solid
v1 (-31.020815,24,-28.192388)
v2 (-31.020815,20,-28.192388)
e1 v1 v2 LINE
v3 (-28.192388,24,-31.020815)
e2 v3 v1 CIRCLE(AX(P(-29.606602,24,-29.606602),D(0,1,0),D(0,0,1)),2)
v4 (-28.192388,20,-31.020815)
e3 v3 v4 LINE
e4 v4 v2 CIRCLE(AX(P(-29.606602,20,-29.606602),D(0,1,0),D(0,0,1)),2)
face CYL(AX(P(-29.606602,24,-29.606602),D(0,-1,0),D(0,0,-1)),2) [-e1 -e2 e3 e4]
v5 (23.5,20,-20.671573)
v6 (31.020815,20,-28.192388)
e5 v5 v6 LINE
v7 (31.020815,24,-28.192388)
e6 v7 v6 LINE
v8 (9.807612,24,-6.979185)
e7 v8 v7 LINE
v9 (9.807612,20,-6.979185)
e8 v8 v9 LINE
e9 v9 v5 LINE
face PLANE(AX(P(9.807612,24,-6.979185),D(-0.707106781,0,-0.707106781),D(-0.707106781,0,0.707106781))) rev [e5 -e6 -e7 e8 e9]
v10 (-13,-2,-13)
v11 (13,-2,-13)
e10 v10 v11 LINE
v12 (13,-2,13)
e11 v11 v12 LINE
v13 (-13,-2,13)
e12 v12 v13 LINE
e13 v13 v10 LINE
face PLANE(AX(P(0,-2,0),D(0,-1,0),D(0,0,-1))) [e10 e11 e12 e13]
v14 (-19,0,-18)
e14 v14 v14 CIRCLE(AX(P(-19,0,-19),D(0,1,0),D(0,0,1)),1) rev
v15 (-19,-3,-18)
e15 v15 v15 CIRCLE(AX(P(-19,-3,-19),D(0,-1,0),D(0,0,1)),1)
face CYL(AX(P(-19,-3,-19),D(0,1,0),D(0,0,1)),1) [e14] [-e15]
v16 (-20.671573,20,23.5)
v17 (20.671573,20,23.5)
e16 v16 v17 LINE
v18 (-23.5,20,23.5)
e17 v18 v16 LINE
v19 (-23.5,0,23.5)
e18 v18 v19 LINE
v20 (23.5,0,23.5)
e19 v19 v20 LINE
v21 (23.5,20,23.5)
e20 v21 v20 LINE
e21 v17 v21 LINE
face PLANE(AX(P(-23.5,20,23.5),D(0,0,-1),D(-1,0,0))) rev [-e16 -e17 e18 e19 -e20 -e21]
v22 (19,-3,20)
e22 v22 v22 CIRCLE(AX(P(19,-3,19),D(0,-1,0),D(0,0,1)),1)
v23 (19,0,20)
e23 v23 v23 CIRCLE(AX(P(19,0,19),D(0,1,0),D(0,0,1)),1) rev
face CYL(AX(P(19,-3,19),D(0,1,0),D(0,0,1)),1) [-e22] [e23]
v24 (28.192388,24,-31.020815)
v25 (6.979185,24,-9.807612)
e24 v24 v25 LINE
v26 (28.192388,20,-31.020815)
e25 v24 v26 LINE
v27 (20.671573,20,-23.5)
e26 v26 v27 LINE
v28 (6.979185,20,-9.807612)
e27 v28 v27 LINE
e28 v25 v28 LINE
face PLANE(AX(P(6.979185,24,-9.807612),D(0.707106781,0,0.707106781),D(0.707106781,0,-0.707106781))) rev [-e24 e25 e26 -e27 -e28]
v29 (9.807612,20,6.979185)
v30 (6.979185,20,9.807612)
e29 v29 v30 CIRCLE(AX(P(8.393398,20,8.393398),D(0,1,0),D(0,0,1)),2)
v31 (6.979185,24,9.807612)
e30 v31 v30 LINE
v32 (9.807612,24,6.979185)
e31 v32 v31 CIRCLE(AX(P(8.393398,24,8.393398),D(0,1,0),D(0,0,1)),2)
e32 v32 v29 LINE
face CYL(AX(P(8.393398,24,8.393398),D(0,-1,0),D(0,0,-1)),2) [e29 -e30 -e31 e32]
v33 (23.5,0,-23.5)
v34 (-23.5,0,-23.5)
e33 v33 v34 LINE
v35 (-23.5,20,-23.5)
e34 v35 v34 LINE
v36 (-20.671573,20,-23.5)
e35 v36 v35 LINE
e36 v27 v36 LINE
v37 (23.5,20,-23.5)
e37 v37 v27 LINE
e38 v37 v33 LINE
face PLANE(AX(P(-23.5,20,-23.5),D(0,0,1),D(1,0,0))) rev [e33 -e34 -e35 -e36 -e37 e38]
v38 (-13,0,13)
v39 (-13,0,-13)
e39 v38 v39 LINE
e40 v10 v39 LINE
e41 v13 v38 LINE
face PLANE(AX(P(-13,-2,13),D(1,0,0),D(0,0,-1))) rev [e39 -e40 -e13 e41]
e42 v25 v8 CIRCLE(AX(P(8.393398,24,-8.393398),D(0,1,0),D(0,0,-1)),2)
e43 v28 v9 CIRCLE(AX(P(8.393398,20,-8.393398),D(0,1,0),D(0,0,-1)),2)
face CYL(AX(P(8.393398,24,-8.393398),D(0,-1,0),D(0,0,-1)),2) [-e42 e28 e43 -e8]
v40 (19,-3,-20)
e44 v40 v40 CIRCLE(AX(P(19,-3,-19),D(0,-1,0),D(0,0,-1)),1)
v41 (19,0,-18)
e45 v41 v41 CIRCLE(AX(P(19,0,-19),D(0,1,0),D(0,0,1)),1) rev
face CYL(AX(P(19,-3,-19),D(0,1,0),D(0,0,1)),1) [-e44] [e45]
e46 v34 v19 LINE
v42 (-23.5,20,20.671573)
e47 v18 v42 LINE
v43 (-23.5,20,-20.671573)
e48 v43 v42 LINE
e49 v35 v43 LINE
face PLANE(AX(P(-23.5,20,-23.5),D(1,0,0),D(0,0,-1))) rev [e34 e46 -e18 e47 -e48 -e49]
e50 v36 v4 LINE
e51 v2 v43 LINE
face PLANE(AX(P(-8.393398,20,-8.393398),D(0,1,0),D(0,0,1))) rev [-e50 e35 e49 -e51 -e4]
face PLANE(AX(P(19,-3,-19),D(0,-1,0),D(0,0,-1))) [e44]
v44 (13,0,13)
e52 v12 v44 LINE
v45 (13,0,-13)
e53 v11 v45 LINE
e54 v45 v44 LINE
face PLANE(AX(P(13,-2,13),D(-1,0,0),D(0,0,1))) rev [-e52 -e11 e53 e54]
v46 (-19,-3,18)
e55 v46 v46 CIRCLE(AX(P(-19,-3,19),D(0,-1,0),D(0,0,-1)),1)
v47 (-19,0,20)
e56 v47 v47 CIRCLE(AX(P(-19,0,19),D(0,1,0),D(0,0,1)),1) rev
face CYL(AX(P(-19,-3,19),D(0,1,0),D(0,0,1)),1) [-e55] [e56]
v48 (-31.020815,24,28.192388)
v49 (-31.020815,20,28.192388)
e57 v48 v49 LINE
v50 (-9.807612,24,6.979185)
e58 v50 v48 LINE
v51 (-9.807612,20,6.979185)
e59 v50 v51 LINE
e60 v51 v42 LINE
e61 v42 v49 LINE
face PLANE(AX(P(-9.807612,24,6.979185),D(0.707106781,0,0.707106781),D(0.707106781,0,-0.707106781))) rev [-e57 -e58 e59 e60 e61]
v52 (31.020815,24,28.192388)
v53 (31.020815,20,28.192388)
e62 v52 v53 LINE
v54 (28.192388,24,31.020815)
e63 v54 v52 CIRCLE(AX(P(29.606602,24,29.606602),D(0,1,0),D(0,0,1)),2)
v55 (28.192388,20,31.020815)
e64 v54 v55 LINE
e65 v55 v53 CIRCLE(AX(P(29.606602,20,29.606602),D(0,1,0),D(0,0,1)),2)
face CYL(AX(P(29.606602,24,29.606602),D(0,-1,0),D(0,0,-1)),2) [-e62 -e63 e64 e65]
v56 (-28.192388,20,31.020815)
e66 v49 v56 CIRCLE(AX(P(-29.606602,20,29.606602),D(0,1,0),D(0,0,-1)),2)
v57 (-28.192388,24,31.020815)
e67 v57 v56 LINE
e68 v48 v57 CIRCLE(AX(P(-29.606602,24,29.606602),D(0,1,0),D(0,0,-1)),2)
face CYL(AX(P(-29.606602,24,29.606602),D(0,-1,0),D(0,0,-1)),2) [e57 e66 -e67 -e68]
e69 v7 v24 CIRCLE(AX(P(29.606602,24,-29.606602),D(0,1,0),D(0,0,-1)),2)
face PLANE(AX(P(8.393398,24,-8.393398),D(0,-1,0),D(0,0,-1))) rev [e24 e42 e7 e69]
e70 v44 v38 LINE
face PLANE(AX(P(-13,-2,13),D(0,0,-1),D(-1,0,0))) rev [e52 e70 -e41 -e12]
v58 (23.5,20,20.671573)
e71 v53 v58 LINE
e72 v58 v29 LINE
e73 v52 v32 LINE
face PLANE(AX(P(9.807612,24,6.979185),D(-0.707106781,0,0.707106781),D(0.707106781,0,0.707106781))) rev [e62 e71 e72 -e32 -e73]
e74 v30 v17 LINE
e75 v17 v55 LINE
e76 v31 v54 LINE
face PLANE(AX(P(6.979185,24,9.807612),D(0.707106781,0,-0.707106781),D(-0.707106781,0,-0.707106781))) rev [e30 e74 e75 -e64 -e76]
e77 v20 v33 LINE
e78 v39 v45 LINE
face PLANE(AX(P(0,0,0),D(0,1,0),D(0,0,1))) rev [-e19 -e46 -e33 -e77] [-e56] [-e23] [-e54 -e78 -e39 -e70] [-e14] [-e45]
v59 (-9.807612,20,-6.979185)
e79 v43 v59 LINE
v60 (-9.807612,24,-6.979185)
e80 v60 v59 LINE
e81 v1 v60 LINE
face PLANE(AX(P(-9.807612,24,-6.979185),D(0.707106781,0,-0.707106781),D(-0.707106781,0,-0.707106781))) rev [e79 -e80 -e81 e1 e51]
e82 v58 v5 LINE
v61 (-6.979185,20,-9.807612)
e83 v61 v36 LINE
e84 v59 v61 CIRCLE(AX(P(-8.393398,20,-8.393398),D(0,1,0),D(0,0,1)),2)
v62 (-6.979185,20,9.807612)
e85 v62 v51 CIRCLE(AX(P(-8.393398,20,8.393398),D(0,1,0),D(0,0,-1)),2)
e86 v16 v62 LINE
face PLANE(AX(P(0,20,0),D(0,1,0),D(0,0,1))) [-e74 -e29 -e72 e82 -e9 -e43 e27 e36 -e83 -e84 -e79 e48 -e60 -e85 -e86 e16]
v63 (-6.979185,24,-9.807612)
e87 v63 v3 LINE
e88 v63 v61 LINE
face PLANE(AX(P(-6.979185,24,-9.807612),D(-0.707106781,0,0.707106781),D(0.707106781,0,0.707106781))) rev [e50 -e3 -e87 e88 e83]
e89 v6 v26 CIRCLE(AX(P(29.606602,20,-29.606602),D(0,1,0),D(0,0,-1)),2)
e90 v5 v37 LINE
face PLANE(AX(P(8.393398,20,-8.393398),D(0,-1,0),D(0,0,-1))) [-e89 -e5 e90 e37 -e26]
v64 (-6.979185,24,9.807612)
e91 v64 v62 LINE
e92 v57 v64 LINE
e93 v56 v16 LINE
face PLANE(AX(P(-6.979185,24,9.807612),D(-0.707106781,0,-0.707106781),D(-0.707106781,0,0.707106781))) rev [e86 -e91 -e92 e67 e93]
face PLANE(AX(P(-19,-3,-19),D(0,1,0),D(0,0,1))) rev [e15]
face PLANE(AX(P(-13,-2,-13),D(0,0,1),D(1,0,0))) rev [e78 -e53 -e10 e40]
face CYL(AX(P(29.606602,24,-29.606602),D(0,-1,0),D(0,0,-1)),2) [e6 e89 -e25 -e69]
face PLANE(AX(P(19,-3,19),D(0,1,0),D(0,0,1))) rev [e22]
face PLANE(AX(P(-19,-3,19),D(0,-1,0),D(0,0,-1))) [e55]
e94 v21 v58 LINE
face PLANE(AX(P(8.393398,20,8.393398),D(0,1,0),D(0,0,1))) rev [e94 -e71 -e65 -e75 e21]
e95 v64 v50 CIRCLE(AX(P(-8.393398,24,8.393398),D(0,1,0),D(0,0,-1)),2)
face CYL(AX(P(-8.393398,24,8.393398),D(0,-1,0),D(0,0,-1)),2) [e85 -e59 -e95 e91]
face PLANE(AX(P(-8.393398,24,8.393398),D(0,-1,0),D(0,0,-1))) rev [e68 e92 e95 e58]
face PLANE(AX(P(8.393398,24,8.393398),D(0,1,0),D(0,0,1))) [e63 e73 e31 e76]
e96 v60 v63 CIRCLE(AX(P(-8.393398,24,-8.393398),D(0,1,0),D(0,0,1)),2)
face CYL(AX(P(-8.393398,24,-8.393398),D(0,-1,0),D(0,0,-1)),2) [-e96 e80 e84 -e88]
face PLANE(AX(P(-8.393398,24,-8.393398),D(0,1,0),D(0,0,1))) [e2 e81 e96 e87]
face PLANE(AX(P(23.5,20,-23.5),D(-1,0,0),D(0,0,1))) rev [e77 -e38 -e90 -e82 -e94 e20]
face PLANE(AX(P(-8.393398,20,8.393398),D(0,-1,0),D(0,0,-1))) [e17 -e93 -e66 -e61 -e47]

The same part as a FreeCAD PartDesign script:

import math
import FreeCAD as App
import Part
import Sketcher

V = App.Vector


def add_polygon(sketch, points):
    """Adds a closed chain of lines whose ends are joined by coincident constraints."""
    first, n = sketch.GeometryCount, len(points)
    for a, b in zip(points, points[1:] + points[:1]):
        sketch.addGeometry(Part.LineSegment(App.Vector(*a, 0), App.Vector(*b, 0)), False)
    for i in range(n):
        sketch.addConstraint(Sketcher.Constraint("Coincident", first + i, 2, first + (i + 1) % n, 1))

doc = App.newDocument("Part")
body = doc.addObject("PartDesign::Body", "Body")

sketch1 = body.newObject("Sketcher::SketchObject", "Sketch")
sketch1.AttachmentSupport = (doc.getObject("XZ_Plane"), [""])
sketch1.MapMode = "FlatFace"
add_polygon(sketch1, [(-23.5, -23.5), (-23.5, 23.5), (23.5, 23.5), (23.5, -23.5)])
sketch1.addConstraint([
    Sketcher.Constraint("Vertical", 0),
    Sketcher.Constraint("Horizontal", 1),
    Sketcher.Constraint("Vertical", 2),
    Sketcher.Constraint("Horizontal", 3),
    Sketcher.Constraint("Symmetric", 0, 2, 2, 2, -1, 1),
    Sketcher.Constraint("Equal", 3, 0),
    Sketcher.Constraint("DistanceX", 1, 1, 1, 2, 47.0),
])
pad1 = body.newObject("PartDesign::Pad", "Pad")
pad1.Profile = sketch1
pad1.Length = 20
pad1.Reversed = True

sketch2 = body.newObject("Sketcher::SketchObject", "Sketch001")
sketch2.AttachmentSupport = (doc.getObject("XZ_Plane"), [""])
sketch2.MapMode = "FlatFace"
sketch2.addGeometry([
    Part.Circle(V(19, -19, 0), V(0, 0, 1), 1),
    Part.Circle(V(-19, -19, 0), V(0, 0, 1), 1),
    Part.Circle(V(-19, 19, 0), V(0, 0, 1), 1),
    Part.Circle(V(19, 19, 0), V(0, 0, 1), 1),
], False)
sketch2.addConstraint([
    Sketcher.Constraint("Equal", 0, 1),
    Sketcher.Constraint("Equal", 1, 2),
    Sketcher.Constraint("Equal", 2, 3),
    Sketcher.Constraint("Symmetric", 0, 3, 2, 3, -1, 1),
    Sketcher.Constraint("Symmetric", 1, 3, 3, 3, -1, 1),
    Sketcher.Constraint("Symmetric", 0, 3, 1, 3, -2),
    Sketcher.Constraint("Diameter", 0, 2.0),
    Sketcher.Constraint("DistanceX", -1, 1, 0, 3, 19.0),
    Sketcher.Constraint("DistanceY", 0, 3, -1, 1, 19.0),
])
pad2 = body.newObject("PartDesign::Pad", "Pad001")
pad2.Profile = sketch2
pad2.Length = 3

sketch3 = body.newObject("Sketcher::SketchObject", "Sketch002")
sketch3.AttachmentSupport = (doc.getObject("XZ_Plane"), [""])
sketch3.MapMode = "FlatFace"
sketch3.AttachmentOffset = App.Placement(V(0, 0, -20), App.Rotation())
sketch3.addGeometry([
    Part.LineSegment(V(31.020815, 28.192388, 0), V(9.807612, 6.979185, 0)),
    Part.ArcOfCircle(Part.Circle(V(8.393398, 8.393398, 0), V(0, 0, 1), 2), math.radians(135), math.radians(315)),
    Part.LineSegment(V(6.979185, 9.807612, 0), V(28.192388, 31.020815, 0)),
    Part.ArcOfCircle(Part.Circle(V(29.606602, 29.606602, 0), V(0, 0, 1), 2), math.radians(-45), math.radians(135)),
    Part.LineSegment(V(9.807612, -6.979185, 0), V(31.020815, -28.192388, 0)),
    Part.ArcOfCircle(Part.Circle(V(29.606602, -29.606602, 0), V(0, 0, 1), 2), math.radians(-135), math.radians(45)),
    Part.LineSegment(V(28.192388, -31.020815, 0), V(6.979185, -9.807612, 0)),
    Part.ArcOfCircle(Part.Circle(V(8.393398, -8.393398, 0), V(0, 0, 1), 2), math.radians(45), math.radians(225)),
    Part.LineSegment(V(-9.807612, 6.979185, 0), V(-31.020815, 28.192388, 0)),
    Part.ArcOfCircle(Part.Circle(V(-29.606602, 29.606602, 0), V(0, 0, 1), 2), math.radians(45), math.radians(225)),
    Part.LineSegment(V(-28.192388, 31.020815, 0), V(-6.979185, 9.807612, 0)),
    Part.ArcOfCircle(Part.Circle(V(-8.393398, 8.393398, 0), V(0, 0, 1), 2), math.radians(-135), math.radians(45)),
    Part.LineSegment(V(-31.020815, -28.192388, 0), V(-9.807612, -6.979185, 0)),
    Part.ArcOfCircle(Part.Circle(V(-8.393398, -8.393398, 0), V(0, 0, 1), 2), math.radians(-45), math.radians(135)),
    Part.LineSegment(V(-6.979185, -9.807612, 0), V(-28.192388, -31.020815, 0)),
    Part.ArcOfCircle(Part.Circle(V(-29.606602, -29.606602, 0), V(0, 0, 1), 2), math.radians(135), math.radians(315)),
], False)
sketch3.addConstraint([
    Sketcher.Constraint("Tangent", 0, 2, 1, 2),
    Sketcher.Constraint("Tangent", 1, 1, 2, 1),
    Sketcher.Constraint("Tangent", 2, 2, 3, 2),
    Sketcher.Constraint("Tangent", 3, 1, 0, 1),
    Sketcher.Constraint("Tangent", 4, 2, 5, 2),
    Sketcher.Constraint("Tangent", 5, 1, 6, 1),
    Sketcher.Constraint("Tangent", 6, 2, 7, 2),
    Sketcher.Constraint("Tangent", 7, 1, 4, 1),
    Sketcher.Constraint("Tangent", 8, 2, 9, 2),
    Sketcher.Constraint("Tangent", 9, 1, 10, 1),
    Sketcher.Constraint("Tangent", 10, 2, 11, 2),
    Sketcher.Constraint("Tangent", 11, 1, 8, 1),
    Sketcher.Constraint("Tangent", 12, 2, 13, 2),
    Sketcher.Constraint("Tangent", 13, 1, 14, 1),
    Sketcher.Constraint("Tangent", 14, 2, 15, 2),
    Sketcher.Constraint("Tangent", 15, 1, 12, 1),
    Sketcher.Constraint("Equal", 1, 3),
    Sketcher.Constraint("Equal", 3, 5),
    Sketcher.Constraint("Equal", 5, 7),
    Sketcher.Constraint("Equal", 7, 9),
    Sketcher.Constraint("Equal", 9, 11),
    Sketcher.Constraint("Equal", 11, 13),
    Sketcher.Constraint("Equal", 13, 15),
    Sketcher.Constraint("Symmetric", 5, 3, 9, 3, -1, 1),
    Sketcher.Constraint("Symmetric", 7, 3, 11, 3, -1, 1),
    Sketcher.Constraint("Symmetric", 1, 3, 13, 3, -1, 1),
    Sketcher.Constraint("Symmetric", 3, 3, 15, 3, -1, 1),
    Sketcher.Constraint("Symmetric", 3, 3, 9, 3, -2),
    Sketcher.Constraint("Symmetric", 1, 3, 11, 3, -2),
    Sketcher.Constraint("Perpendicular", 2, 4),
    Sketcher.Constraint("Radius", 1, 2.0),
    Sketcher.Constraint("Distance", 0, 30.0),
    Sketcher.Constraint("DistanceY", 5, 3, 1, 3, 38.0),
    Sketcher.Constraint("DistanceX", 9, 3, 1, 3, 38.0),
])
pad3 = body.newObject("PartDesign::Pad", "Pad002")
pad3.Profile = sketch3
pad3.Length = 4
pad3.Reversed = True

sketch4 = body.newObject("Sketcher::SketchObject", "Sketch003")
sketch4.AttachmentSupport = (doc.getObject("XZ_Plane"), [""])
sketch4.MapMode = "FlatFace"
add_polygon(sketch4, [(-13, 13), (-13, -13), (13, -13), (13, 13)])
sketch4.addConstraint([
    Sketcher.Constraint("Vertical", 0),
    Sketcher.Constraint("Horizontal", 1),
    Sketcher.Constraint("Vertical", 2),
    Sketcher.Constraint("Horizontal", 3),
    Sketcher.Constraint("Symmetric", 0, 2, 2, 2, -1, 1),
    Sketcher.Constraint("Equal", 3, 0),
    Sketcher.Constraint("DistanceX", 1, 1, 1, 2, 26.0),
])
pad4 = body.newObject("PartDesign::Pad", "Pad003")
pad4.Profile = sketch4
pad4.Length = 2

doc.recompute()
